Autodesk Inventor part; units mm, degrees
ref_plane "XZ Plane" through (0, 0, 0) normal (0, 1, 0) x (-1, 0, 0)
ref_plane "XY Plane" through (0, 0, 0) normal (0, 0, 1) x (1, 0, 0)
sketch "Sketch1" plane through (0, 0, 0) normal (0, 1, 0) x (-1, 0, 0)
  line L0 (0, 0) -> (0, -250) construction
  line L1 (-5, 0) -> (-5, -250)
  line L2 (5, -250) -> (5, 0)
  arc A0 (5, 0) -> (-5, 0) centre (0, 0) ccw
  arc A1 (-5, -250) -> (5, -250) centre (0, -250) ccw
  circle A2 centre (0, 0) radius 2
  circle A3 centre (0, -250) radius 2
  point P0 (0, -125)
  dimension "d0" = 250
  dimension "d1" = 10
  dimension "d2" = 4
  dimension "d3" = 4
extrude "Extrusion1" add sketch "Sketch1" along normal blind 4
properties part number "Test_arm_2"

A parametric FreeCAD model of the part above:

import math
import FreeCAD as App
import Part
import Sketcher

V = App.Vector
Q = App.Units.Quantity

doc = App.newDocument("Part")
body = doc.addObject("PartDesign::Body", "Body")

sketch1 = body.newObject("Sketcher::SketchObject", "Sketch")
sketch1.AttachmentSupport = (doc.getObject("XZ_Plane"), [""])
sketch1.MapMode = "FlatFace"
sketch1.addGeometry([
    Part.ArcOfCircle(Part.Circle(V(0, 0, 0), V(0, 0, 1), 5), math.radians(0), math.radians(180)),
    Part.LineSegment(V(5, 0, 0), V(5, -250, 0)),
    Part.ArcOfCircle(Part.Circle(V(0, -250, 0), V(0, 0, 1), 5), math.radians(180), math.radians(360)),
    Part.LineSegment(V(-5, -250, 0), V(-5, 0, 0)),
    Part.Circle(V(0, -250, 0), V(0, 0, 1), 2),
    Part.Circle(V(0, 0, 0), V(0, 0, 1), 2),
], False)
sketch1.addConstraint([
    Sketcher.Constraint("Tangent", 0, 1, 1, 1),
    Sketcher.Constraint("Tangent", 1, 2, 2, 2),
    Sketcher.Constraint("Tangent", 2, 1, 3, 1),
    Sketcher.Constraint("Tangent", 3, 2, 0, 2),
    Sketcher.Constraint("Vertical", 1),
    Sketcher.Constraint("Vertical", 3),
    Sketcher.Constraint("Coincident", 0, 3, -1, 1),
    Sketcher.Constraint("Coincident", 5, 3, -1, 1),
    Sketcher.Constraint("Coincident", 4, 3, 2, 3),
    Sketcher.Constraint("Equal", 4, 5),
    Sketcher.Constraint("Diameter", 4, Q("4 mm")),
    Sketcher.Constraint("Radius", 0, Q("5 mm")),
    Sketcher.Constraint("DistanceY", 1, 2, 1, 1, Q("250 mm")),
])
pad1 = body.newObject("PartDesign::Pad", "Pad")
pad1.Profile = sketch1
pad1.Length = 4
pad1.Reversed = True

doc.recompute()
